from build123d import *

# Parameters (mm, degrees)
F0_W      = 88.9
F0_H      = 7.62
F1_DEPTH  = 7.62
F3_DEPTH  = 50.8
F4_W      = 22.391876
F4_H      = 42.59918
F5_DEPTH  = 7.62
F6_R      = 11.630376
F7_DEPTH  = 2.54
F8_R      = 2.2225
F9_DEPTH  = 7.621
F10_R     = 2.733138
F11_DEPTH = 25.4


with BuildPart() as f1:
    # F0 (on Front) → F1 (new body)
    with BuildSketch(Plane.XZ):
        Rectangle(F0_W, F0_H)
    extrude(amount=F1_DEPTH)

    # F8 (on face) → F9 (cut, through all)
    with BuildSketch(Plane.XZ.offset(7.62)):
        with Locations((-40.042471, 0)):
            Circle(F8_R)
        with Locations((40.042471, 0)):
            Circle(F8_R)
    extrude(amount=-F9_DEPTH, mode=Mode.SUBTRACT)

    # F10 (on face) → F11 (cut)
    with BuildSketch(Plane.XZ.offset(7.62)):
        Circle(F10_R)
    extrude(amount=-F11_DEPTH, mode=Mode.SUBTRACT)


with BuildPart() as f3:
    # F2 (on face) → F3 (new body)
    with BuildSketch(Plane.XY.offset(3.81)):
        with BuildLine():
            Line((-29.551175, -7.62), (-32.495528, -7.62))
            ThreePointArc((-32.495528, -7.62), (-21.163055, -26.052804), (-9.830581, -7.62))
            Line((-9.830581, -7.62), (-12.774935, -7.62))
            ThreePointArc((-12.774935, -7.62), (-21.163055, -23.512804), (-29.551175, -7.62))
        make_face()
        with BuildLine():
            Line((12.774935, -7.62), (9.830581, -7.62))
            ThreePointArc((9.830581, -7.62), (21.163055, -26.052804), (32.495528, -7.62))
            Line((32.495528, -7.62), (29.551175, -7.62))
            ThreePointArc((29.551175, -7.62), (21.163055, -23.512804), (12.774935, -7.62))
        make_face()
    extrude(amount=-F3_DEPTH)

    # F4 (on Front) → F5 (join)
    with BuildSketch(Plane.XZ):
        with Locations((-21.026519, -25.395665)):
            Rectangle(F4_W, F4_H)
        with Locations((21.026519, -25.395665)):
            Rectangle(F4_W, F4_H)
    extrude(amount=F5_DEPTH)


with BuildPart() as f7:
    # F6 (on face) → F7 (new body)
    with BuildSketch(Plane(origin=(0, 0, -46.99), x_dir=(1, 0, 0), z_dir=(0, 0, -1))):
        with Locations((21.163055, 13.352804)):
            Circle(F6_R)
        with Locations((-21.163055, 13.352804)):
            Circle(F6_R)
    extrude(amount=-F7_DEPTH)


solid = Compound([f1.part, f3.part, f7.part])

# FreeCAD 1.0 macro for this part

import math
import FreeCAD as App
import Part
import Sketcher

V = App.Vector
Q = App.Units.Quantity


def add_polygon(sketch, points):
    """Adds a closed chain of lines whose ends are joined by coincident constraints."""
    first, n = sketch.GeometryCount, len(points)
    for a, b in zip(points, points[1:] + points[:1]):
        sketch.addGeometry(Part.LineSegment(App.Vector(*a, 0), App.Vector(*b, 0)), False)
    for i in range(n):
        sketch.addConstraint(Sketcher.Constraint("Coincident", first + i, 2, first + (i + 1) % n, 1))

doc = App.newDocument("Part")
body = doc.addObject("PartDesign::Body", "Body")

sketch1 = body.newObject("Sketcher::SketchObject", "Sketch")
sketch1.AttachmentSupport = (doc.getObject("XZ_Plane"), [""])
sketch1.MapMode = "FlatFace"
add_polygon(sketch1, [(-44.45, 3.81), (-44.45, -3.81), (44.45, -3.81), (44.45, 3.81)])
sketch1.addConstraint([
    Sketcher.Constraint("Vertical", 0),
    Sketcher.Constraint("Horizontal", 1),
    Sketcher.Constraint("Vertical", 2),
    Sketcher.Constraint("Horizontal", 3),
    Sketcher.Constraint("Symmetric", 0, 2, 2, 2, -1, 1),
    Sketcher.Constraint("DistanceX", 1, 1, 1, 2, Q("3.5 in")),
    Sketcher.Constraint("DistanceY", 0, 2, 0, 1, Q("0.3 in")),
])
pad1 = body.newObject("PartDesign::Pad", "Pad")
pad1.Profile = sketch1
pad1.Length = Q("0.3 in")

sketch2 = body.newObject("Sketcher::SketchObject", "Sketch001")
sketch2.AttachmentSupport = (doc.getObject("XZ_Plane"), [""])
sketch2.MapMode = "FlatFace"
sketch2.AttachmentOffset = App.Placement(V(0, 0, 0.3 * 25.4), App.Rotation())
sketch2.addGeometry([
    Part.Circle(V(-40.042471, 0, 0), V(0, 0, 1), 2.2225),
    Part.Circle(V(40.042471, 0, 0), V(0, 0, 1), 2.2225),
], False)
sketch2.addConstraint([
    Sketcher.Constraint("Equal", 0, 1),
    Sketcher.Constraint("Symmetric", 0, 3, 1, 3, -1, 1),
    Sketcher.Constraint("PointOnObject", 0, 3, -1),
    Sketcher.Constraint("Diameter", 0, Q("0.175 in")),
    Sketcher.Constraint("DistanceX", 0, 3, -1, 1, Q("40.042471 mm")),
])
pocket1 = body.newObject("PartDesign::Pocket", "Pocket")
pocket1.Profile = sketch2
pocket1.Type = "ThroughAll"

sketch3 = body.newObject("Sketcher::SketchObject", "Sketch002")
sketch3.AttachmentSupport = (doc.getObject("XZ_Plane"), [""])
sketch3.MapMode = "FlatFace"
sketch3.AttachmentOffset = App.Placement(V(0, 0, 0.3 * 25.4), App.Rotation())
sketch3.addGeometry(Part.Circle(V(0, 0, 0), V(0, 0, 1), 2.733138), False)
sketch3.addConstraint([
    Sketcher.Constraint("Coincident", 0, 3, -1, 1),
    Sketcher.Constraint("Diameter", 0, Q("5.466276 mm")),
])
pocket2 = body.newObject("PartDesign::Pocket", "Pocket001")
pocket2.Profile = sketch3
pocket2.Length = Q("1 in")
body2 = doc.addObject("PartDesign::Body", "Body001")
body2.AllowCompound = True

sketch4 = body2.newObject("Sketcher::SketchObject", "Sketch003")
sketch4.AttachmentSupport = (doc.getObject("XY_Plane001"), [""])
sketch4.MapMode = "FlatFace"
sketch4.AttachmentOffset = App.Placement(V(0, 0, 0.15 * 25.4), App.Rotation())
sketch4.addGeometry([
    Part.LineSegment(V(-29.551175, -7.62, 0), V(-32.495528, -7.62, 0)),
    Part.ArcOfCircle(Part.Circle(V(-21.163055, -13.352804, 0), V(0, 0, 1), 12.7), math.radians(153.166336), math.radians(386.833664)),
    Part.LineSegment(V(-9.830581, -7.62, 0), V(-12.774935, -7.62, 0)),
    Part.ArcOfCircle(Part.Circle(V(-21.163055, -13.352804, 0), V(0, 0, 1), 10.16), math.radians(145.64961), math.radians(394.35039)),
    Part.LineSegment(V(12.774935, -7.62, 0), V(9.830581, -7.62, 0)),
    Part.ArcOfCircle(Part.Circle(V(21.163055, -13.352804, 0), V(0, 0, 1), 12.7), math.radians(153.166336), math.radians(386.833664)),
    Part.LineSegment(V(32.495528, -7.62, 0), V(29.551175, -7.62, 0)),
    Part.ArcOfCircle(Part.Circle(V(21.163055, -13.352804, 0), V(0, 0, 1), 10.16), math.radians(145.64961), math.radians(394.35039)),
], False)
sketch4.addConstraint([
    Sketcher.Constraint("Coincident", 0, 2, 1, 1),
    Sketcher.Constraint("Coincident", 1, 2, 2, 1),
    Sketcher.Constraint("Coincident", 2, 2, 3, 2),
    Sketcher.Constraint("Coincident", 3, 1, 0, 1),
    Sketcher.Constraint("Coincident", 4, 2, 5, 1),
    Sketcher.Constraint("Coincident", 5, 2, 6, 1),
    Sketcher.Constraint("Coincident", 6, 2, 7, 2),
    Sketcher.Constraint("Coincident", 7, 1, 4, 1),
    Sketcher.Constraint("Horizontal", 0),
    Sketcher.Constraint("Horizontal", 2),
    Sketcher.Constraint("Horizontal", 4),
    Sketcher.Constraint("Horizontal", 6),
    Sketcher.Constraint("Coincident", 3, 3, 1, 3),
    Sketcher.Constraint("Coincident", 7, 3, 5, 3),
    Sketcher.Constraint("Equal", 1, 5),
    Sketcher.Constraint("Equal", 3, 7),
    Sketcher.Constraint("Symmetric", 1, 3, 5, 3, -2),
    Sketcher.Constraint("Horizontal", 0, 2, 1, 2),
    Sketcher.Constraint("Horizontal", 3, 1, 4, 2),
    Sketcher.Constraint("Horizontal", 4, 2, 5, 2),
    Sketcher.Constraint("Radius", 1, Q("0.5 in")),
    Sketcher.Constraint("Radius", 3, Q("0.4 in")),
    Sketcher.Constraint("DistanceY", 0, 2, -1, 1, Q("0.3 in")),
    Sketcher.Constraint("DistanceX", 0, 2, 0, 1, Q("2.944353 mm")),
    Sketcher.Constraint("DistanceX", 1, 2, -1, 1, Q("9.830581 mm")),
])
pad2 = body2.newObject("PartDesign::Pad", "Pad001")
pad2.Profile = sketch4
pad2.Length = Q("2 in")
pad2.Reversed = True

sketch5 = body2.newObject("Sketcher::SketchObject", "Sketch004")
sketch5.AttachmentSupport = (doc.getObject("XZ_Plane001"), [""])
sketch5.MapMode = "FlatFace"
add_polygon(sketch5, [(-32.222457, -4.096075), (-32.222457, -46.695255), (-9.830581, -46.695255), (-9.830581, -4.096075)])
add_polygon(sketch5, [(9.830581, -4.096075), (9.830581, -46.695255), (32.222457, -46.695255), (32.222457, -4.096075)])
sketch5.addConstraint([
    Sketcher.Constraint("Vertical", 0),
    Sketcher.Constraint("Horizontal", 1),
    Sketcher.Constraint("Vertical", 2),
    Sketcher.Constraint("Horizontal", 3),
    Sketcher.Constraint("Vertical", 4),
    Sketcher.Constraint("Horizontal", 5),
    Sketcher.Constraint("Vertical", 6),
    Sketcher.Constraint("Horizontal", 7),
    Sketcher.Constraint("Symmetric", 1, 2, 4, 2, -2),
    Sketcher.Constraint("Symmetric", 3, 2, 6, 2, -2),
    Sketcher.Constraint("DistanceY", 0, 2, 0, 1, Q("42.59918 mm")),
    Sketcher.Constraint("DistanceX", 1, 1, 1, 2, Q("22.391876 mm")),
    Sketcher.Constraint("DistanceX", 1, 2, -1, 1, Q("9.830581 mm")),
    Sketcher.Constraint("DistanceY", 0, 2, -1, 1, Q("46.695255 mm")),
])
pad3 = body2.newObject("PartDesign::Pad", "Pad002")
pad3.Profile = sketch5
pad3.Length = Q("0.3 in")
body3 = doc.addObject("PartDesign::Body", "Body002")
body3.AllowCompound = True

sketch6 = body3.newObject("Sketcher::SketchObject", "Sketch005")
sketch6.AttachmentSupport = (doc.getObject("XY_Plane002"), [""])
sketch6.MapMode = "FlatFace"
sketch6.AttachmentOffset = App.Placement(V(0, 0, -1.85 * 25.4), App.Rotation())
sketch6.addGeometry([
    Part.Circle(V(21.163055, -13.352804, 0), V(0, 0, 1), 11.630376),
    Part.Circle(V(-21.163055, -13.352804, 0), V(0, 0, 1), 11.630376),
], False)
sketch6.addConstraint([
    Sketcher.Constraint("Equal", 0, 1),
    Sketcher.Constraint("Symmetric", 0, 3, 1, 3, -2),
    Sketcher.Constraint("Diameter", 0, Q("23.260752 mm")),
    Sketcher.Constraint("DistanceX", 1, 3, 0, 3, Q("42.32611 mm")),
    Sketcher.Constraint("DistanceY", 0, 3, -1, 1, Q("13.352804 mm")),
])
pad4 = body3.newObject("PartDesign::Pad", "Pad003")
pad4.Profile = sketch6
pad4.Length = Q("0.1 in")

doc.recompute()
